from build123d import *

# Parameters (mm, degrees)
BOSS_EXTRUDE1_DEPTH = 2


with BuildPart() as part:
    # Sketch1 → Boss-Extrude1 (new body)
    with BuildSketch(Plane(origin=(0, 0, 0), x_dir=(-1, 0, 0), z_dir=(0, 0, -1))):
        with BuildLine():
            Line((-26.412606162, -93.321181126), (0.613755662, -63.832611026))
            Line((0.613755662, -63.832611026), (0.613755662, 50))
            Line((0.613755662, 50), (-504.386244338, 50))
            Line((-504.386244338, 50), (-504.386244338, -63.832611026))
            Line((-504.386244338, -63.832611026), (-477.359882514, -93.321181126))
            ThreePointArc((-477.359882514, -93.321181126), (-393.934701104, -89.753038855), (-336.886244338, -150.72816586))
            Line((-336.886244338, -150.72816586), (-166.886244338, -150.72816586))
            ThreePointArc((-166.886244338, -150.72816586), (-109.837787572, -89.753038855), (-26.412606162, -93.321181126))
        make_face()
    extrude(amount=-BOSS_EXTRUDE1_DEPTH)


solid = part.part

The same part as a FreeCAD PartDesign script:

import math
import FreeCAD as App
import Part
import Sketcher
Q = App.Units.Quantity

doc = App.newDocument("Part")
params = doc.addObject("Spreadsheet::Sheet", "Params")
for row, (alias, value) in enumerate([
    ("sketch1_radius", "100 mm"),
    ("sketch1_width", "505 mm"),
    ("sketch1_width2", "170 mm"),
    ("sketch1_length", "40 mm"),
    ("pad1_length", "2 mm"),
], start=1):
    params.set(f"A{row}", alias)
    params.set(f"B{row}", "=" + value)
    params.setAlias(f"B{row}", alias)

body = doc.addObject("PartDesign::Body", "Body")

sketch1 = body.newObject("Sketcher::SketchObject", "Sketch")
sketch1.AttachmentSupport = (doc.getObject("XY_Plane"), [""])
sketch1.MapMode = "FlatFace"
sketch1.addGeometry(Part.LineSegment(App.Vector(26, -93, 0), App.Vector(-1, -64, 0)), False)
sketch1.addGeometry(Part.LineSegment(App.Vector(-1, -64, 0), App.Vector(-1, 50, 0)), False)
sketch1.addGeometry(Part.LineSegment(App.Vector(-1, 50, 0), App.Vector(504, 50, 0)), False)
sketch1.addGeometry(Part.LineSegment(App.Vector(504, 50, 0), App.Vector(504, -64, 0)), False)
sketch1.addGeometry(Part.LineSegment(App.Vector(504, -64, 0), App.Vector(477, -93, 0)), False)
sketch1.addGeometry(Part.ArcOfCircle(Part.Circle(App.Vector(432, -182, 0), App.Vector(0, 0, 1), 100), math.radians(63), math.radians(162)), False)
sketch1.addGeometry(Part.LineSegment(App.Vector(337, -151, 0), App.Vector(167, -151, 0)), False)
sketch1.addGeometry(Part.ArcOfCircle(Part.Circle(App.Vector(72, -182, 0), App.Vector(0, 0, 1), 100), math.radians(18), math.radians(117)), False)
sketch1.addConstraint(Sketcher.Constraint("Coincident", 0, 2, 1, 1))
sketch1.addConstraint(Sketcher.Constraint("Coincident", 1, 2, 2, 1))
sketch1.addConstraint(Sketcher.Constraint("Coincident", 2, 2, 3, 1))
sketch1.addConstraint(Sketcher.Constraint("Coincident", 3, 2, 4, 1))
sketch1.addConstraint(Sketcher.Constraint("Coincident", 4, 2, 5, 1))
sketch1.addConstraint(Sketcher.Constraint("Coincident", 5, 2, 6, 1))
sketch1.addConstraint(Sketcher.Constraint("Coincident", 6, 2, 7, 1))
sketch1.addConstraint(Sketcher.Constraint("Coincident", 7, 2, 0, 1))
sketch1.addConstraint(Sketcher.Constraint("Vertical", 1))
sketch1.addConstraint(Sketcher.Constraint("Horizontal", 2))
sketch1.addConstraint(Sketcher.Constraint("Vertical", 3))
sketch1.addConstraint(Sketcher.Constraint("Horizontal", 6))
sketch1.addConstraint(Sketcher.Constraint("Equal", 5, 7))
sketch1.addConstraint(Sketcher.Constraint("Horizontal", 5, 3, 7, 3))
sketch1.addConstraint(Sketcher.Constraint("Horizontal", 0, 2, 3, 2))
sketch1.addConstraint(Sketcher.Constraint("Horizontal", 4, 2, 7, 2))
sketch1.addConstraint(Sketcher.Constraint("Equal", 0, 4))
sketch1.addConstraint(Sketcher.Constraint("Radius", 5, Q("100 mm")))
sketch1.addConstraint(Sketcher.Constraint("DistanceX", 2, 1, 2, 2, Q("505 mm")))
sketch1.addConstraint(Sketcher.Constraint("DistanceX", 6, 2, 6, 1, Q("170 mm")))
sketch1.addConstraint(Sketcher.Constraint("Distance", 0, Q("40 mm")))
sketch1.addConstraint(Sketcher.Constraint("DistanceY", -1, 1, 1, 2, Q("50 mm")))
sketch1.addConstraint(Sketcher.Constraint("DistanceY", 1, 1, 1, 2, Q("113.832611 mm")))
sketch1.addConstraint(Sketcher.Constraint("DistanceY", 5, 3, -1, 1, Q("182.32147 mm")))
sketch1.addConstraint(Sketcher.Constraint("DistanceY", 4, 2, -1, 1, Q("93.321181 mm")))
sketch1.addConstraint(Sketcher.Constraint("DistanceX", -1, 1, 5, 3, Q("431.764393 mm")))
sketch1.setExpression("Constraints[17]", "Params.sketch1_radius")
sketch1.setExpression("Constraints[18]", "Params.sketch1_width")
sketch1.setExpression("Constraints[19]", "Params.sketch1_width2")
sketch1.setExpression("Constraints[20]", "Params.sketch1_length")
pad1 = body.newObject("PartDesign::Pad", "Pad")
pad1.Profile = sketch1
pad1.setExpression("Length", "Params.pad1_length")

doc.recompute()
